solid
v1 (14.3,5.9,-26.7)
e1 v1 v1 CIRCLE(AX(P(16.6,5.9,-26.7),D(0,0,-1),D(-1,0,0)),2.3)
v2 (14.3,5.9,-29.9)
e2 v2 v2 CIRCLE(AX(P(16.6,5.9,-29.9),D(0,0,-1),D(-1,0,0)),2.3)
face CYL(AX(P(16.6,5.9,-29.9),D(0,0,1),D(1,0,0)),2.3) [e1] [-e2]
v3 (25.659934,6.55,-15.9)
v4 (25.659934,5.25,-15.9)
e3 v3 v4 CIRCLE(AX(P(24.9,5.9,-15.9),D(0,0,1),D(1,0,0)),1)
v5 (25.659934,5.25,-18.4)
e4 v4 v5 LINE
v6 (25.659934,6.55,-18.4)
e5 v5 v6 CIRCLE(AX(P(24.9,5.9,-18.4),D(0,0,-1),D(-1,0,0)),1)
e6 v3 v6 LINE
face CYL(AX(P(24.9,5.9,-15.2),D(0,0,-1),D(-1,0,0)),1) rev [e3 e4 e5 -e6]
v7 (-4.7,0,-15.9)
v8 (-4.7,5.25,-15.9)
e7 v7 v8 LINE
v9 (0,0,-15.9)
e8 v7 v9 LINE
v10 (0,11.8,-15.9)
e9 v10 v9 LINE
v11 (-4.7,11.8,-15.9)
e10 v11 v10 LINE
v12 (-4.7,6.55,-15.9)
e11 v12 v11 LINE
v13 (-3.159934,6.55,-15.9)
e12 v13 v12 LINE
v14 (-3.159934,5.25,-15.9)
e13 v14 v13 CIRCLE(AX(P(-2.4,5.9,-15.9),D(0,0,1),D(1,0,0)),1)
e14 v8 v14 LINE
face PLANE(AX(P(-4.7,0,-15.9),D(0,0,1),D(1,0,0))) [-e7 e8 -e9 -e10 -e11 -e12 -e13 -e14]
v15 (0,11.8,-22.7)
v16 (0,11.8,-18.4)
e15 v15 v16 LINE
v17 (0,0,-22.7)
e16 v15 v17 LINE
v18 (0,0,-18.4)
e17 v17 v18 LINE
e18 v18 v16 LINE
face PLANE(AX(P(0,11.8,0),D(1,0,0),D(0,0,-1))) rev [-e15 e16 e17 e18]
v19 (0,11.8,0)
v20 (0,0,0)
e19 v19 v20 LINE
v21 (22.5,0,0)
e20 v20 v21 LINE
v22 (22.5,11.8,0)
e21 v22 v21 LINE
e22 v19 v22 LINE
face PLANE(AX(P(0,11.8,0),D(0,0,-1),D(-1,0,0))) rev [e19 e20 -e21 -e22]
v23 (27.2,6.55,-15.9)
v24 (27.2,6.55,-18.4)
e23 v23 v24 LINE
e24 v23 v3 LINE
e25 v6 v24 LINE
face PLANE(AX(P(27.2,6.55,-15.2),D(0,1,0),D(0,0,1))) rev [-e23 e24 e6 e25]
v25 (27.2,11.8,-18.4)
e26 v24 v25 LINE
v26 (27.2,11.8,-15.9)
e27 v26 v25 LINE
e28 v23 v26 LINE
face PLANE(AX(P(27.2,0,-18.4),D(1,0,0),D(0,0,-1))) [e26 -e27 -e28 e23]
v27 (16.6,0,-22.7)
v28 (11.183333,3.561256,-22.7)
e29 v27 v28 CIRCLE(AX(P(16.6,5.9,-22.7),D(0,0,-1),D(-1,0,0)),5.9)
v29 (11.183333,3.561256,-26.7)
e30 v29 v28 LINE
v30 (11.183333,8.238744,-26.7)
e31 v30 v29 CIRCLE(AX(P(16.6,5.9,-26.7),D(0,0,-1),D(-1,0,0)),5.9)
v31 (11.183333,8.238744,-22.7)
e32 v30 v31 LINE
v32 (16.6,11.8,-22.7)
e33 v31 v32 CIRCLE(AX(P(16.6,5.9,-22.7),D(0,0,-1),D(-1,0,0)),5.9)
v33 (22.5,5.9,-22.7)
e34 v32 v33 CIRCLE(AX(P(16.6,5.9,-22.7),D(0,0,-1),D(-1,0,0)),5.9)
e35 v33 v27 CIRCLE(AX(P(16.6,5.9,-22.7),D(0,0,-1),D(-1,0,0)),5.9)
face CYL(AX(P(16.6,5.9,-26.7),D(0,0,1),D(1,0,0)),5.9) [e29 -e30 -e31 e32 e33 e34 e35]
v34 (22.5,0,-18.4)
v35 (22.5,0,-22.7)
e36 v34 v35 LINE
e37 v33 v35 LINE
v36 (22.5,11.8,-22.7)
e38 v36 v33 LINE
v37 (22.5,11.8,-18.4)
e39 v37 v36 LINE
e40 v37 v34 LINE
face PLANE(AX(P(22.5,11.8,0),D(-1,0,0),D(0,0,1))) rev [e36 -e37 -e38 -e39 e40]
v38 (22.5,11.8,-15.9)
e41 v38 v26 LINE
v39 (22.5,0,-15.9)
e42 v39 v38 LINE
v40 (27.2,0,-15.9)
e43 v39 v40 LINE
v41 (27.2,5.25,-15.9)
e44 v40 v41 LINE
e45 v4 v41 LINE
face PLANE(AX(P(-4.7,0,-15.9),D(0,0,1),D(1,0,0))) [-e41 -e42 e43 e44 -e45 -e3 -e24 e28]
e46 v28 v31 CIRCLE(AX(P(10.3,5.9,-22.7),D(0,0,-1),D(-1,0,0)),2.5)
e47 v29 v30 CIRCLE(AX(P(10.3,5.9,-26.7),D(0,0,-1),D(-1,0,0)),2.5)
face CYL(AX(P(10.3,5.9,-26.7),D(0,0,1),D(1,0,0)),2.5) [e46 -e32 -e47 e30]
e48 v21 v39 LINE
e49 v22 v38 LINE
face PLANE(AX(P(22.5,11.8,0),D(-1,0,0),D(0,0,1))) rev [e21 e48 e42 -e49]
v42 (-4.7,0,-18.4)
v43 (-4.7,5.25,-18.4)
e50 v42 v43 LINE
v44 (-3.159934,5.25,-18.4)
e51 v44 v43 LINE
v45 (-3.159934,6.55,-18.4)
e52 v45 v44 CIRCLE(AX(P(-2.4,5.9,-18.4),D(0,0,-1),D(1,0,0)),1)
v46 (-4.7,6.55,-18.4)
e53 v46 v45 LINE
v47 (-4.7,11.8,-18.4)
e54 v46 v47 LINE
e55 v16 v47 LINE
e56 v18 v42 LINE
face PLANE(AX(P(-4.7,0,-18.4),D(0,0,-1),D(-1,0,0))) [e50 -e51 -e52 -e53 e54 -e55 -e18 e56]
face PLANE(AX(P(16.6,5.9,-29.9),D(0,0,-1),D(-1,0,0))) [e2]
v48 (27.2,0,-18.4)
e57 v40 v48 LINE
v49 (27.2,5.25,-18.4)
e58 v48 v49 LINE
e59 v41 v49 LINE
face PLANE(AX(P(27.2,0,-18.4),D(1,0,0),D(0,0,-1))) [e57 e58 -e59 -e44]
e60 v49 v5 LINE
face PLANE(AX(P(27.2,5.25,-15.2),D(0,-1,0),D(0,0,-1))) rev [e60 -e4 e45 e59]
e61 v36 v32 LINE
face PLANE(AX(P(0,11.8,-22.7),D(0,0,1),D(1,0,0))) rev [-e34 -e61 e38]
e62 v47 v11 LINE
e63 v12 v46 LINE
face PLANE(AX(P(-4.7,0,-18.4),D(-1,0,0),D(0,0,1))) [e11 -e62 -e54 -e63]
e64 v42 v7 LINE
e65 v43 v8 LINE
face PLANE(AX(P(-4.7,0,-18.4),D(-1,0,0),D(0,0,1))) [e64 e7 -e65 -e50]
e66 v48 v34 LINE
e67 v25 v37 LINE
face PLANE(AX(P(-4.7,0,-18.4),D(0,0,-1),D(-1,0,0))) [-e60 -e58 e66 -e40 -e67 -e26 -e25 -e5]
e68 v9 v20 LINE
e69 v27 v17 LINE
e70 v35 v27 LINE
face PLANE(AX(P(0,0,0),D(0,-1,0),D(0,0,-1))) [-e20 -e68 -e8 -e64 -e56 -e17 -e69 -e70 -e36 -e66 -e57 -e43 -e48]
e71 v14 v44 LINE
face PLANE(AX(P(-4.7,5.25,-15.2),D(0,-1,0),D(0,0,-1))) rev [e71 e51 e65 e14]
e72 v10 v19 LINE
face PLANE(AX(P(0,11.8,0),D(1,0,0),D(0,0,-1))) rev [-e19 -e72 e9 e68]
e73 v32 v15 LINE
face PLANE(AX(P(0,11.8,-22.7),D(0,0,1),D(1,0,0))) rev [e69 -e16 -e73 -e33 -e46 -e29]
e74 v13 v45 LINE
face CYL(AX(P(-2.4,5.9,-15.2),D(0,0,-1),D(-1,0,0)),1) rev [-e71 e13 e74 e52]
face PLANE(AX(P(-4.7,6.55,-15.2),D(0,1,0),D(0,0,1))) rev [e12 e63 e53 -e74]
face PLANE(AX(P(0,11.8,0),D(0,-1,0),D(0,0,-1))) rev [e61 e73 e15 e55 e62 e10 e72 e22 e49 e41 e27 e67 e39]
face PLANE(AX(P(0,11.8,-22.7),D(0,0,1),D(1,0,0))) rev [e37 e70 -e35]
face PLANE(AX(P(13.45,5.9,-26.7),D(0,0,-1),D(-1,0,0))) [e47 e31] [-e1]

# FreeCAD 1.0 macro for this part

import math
import FreeCAD as App
import Part
import Sketcher
Q = App.Units.Quantity

doc = App.newDocument("Part")
body = doc.addObject("PartDesign::Body", "Body")

sketch1 = doc.addObject("Sketcher::SketchObject", "Sketch")
body.addObject(sketch1)
sketch1.AttachmentSupport = (doc.XZ_Plane, [""])
sketch1.MapMode = "FlatFace"
sketch1.addGeometry([
    Part.LineSegment(App.Vector(0, -23, 0), App.Vector(0, 0, 0)),
    Part.LineSegment(App.Vector(0, 0, 0), App.Vector(22, 0, 0)),
    Part.LineSegment(App.Vector(22, 0, 0), App.Vector(22, -23, 0)),
    Part.LineSegment(App.Vector(22, -23, 0), App.Vector(0, -23, 0)),
], False)
sketch1.addConstraint([
    Sketcher.Constraint("Coincident", 0, 2, 1, 1),
    Sketcher.Constraint("Coincident", 1, 2, 2, 1),
    Sketcher.Constraint("Coincident", 2, 2, 3, 1),
    Sketcher.Constraint("Coincident", 3, 2, 0, 1),
    Sketcher.Constraint("Vertical", 0),
    Sketcher.Constraint("Horizontal", 1),
    Sketcher.Constraint("Vertical", 2),
    Sketcher.Constraint("Horizontal", 3),
    Sketcher.Constraint("Coincident", 0, 2, -1, 1),
    Sketcher.Constraint("DistanceX", 1, 1, 1, 2, Q("22.5 mm")),
    Sketcher.Constraint("DistanceY", 0, 1, 0, 2, Q("22.7 mm")),
])
pad1 = doc.addObject("PartDesign::Pad", "Pad")
body.addObject(pad1)
pad1.Profile = sketch1
pad1.Length = 11.8
pad1.Reversed = True

sketch2 = doc.addObject("Sketcher::SketchObject", "Sketch001")
body.addObject(sketch2)
sketch2.AttachmentSupport = (doc.XZ_Plane, [""])
sketch2.MapMode = "FlatFace"
sketch2.AttachmentOffset = App.Placement(App.Vector(0, 0, -11.8), App.Rotation())
sketch2.addGeometry([
    Part.LineSegment(App.Vector(-4.7, -18.4, 0), App.Vector(-4.7, -15.9, 0)),
    Part.LineSegment(App.Vector(-4.7, -15.9, 0), App.Vector(27.2, -15.9, 0)),
    Part.LineSegment(App.Vector(27.2, -15.9, 0), App.Vector(27.2, -18.4, 0)),
    Part.LineSegment(App.Vector(27.2, -18.4, 0), App.Vector(-4.7, -18.4, 0)),
], False)
sketch2.addConstraint([
    Sketcher.Constraint("Coincident", 0, 2, 1, 1),
    Sketcher.Constraint("Coincident", 1, 2, 2, 1),
    Sketcher.Constraint("Coincident", 2, 2, 3, 1),
    Sketcher.Constraint("Coincident", 3, 2, 0, 1),
    Sketcher.Constraint("Vertical", 0),
    Sketcher.Constraint("Horizontal", 1),
    Sketcher.Constraint("Vertical", 2),
    Sketcher.Constraint("Horizontal", 3),
    Sketcher.Constraint("DistanceX", 1, 1, 1, 2, Q("31.9 mm")),
    Sketcher.Constraint("DistanceY", 0, 1, 0, 2, Q("2.5 mm")),
    Sketcher.Constraint("DistanceX", 0, 2, -1, 1, Q("4.7 mm")),
    Sketcher.Constraint("DistanceY", 0, 2, -1, 1, Q("15.9 mm")),
])
pad2 = doc.addObject("PartDesign::Pad", "Pad001")
body.addObject(pad2)
pad2.Profile = sketch2
pad2.Length = 11.8

sketch3 = doc.addObject("Sketcher::SketchObject", "Sketch002")
body.addObject(sketch3)
sketch3.AttachmentSupport = (doc.XY_Plane, [""])
sketch3.MapMode = "FlatFace"
sketch3.AttachmentOffset = App.Placement(App.Vector(0, 0, -22.7), App.Rotation())
sketch3.addGeometry([
    Part.ArcOfCircle(Part.Circle(App.Vector(16.6, 5.9, 0), App.Vector(0, 0, 1), 5.9), math.radians(-157), math.radians(157)),
    Part.ArcOfCircle(Part.Circle(App.Vector(10.3, 5.9, 0), App.Vector(0, 0, 1), 2.5), math.radians(69), math.radians(291)),
], False)
sketch3.addConstraint([
    Sketcher.Constraint("Coincident", 0, 1, 1, 2),
    Sketcher.Constraint("Coincident", 1, 1, 0, 2),
    Sketcher.Constraint("Horizontal", 0, 3, 1, 3),
    Sketcher.Constraint("Radius", 0, Q("5.9 mm")),
    Sketcher.Constraint("Radius", 1, Q("2.5 mm")),
    Sketcher.Constraint("DistanceX", -1, 1, 0, 3, Q("16.6 mm")),
    Sketcher.Constraint("DistanceY", -1, 1, 0, 3, Q("5.9 mm")),
    Sketcher.Constraint("DistanceX", -1, 1, 1, 3, Q("10.3 mm")),
])
pad3 = doc.addObject("PartDesign::Pad", "Pad002")
body.addObject(pad3)
pad3.Profile = sketch3
pad3.Length = 4
pad3.Reversed = True

sketch4 = doc.addObject("Sketcher::SketchObject", "Sketch003")
body.addObject(sketch4)
sketch4.AttachmentSupport = (doc.XY_Plane, [""])
sketch4.MapMode = "FlatFace"
sketch4.AttachmentOffset = App.Placement(App.Vector(0, 0, -26.7), App.Rotation())
sketch4.addGeometry(Part.Circle(App.Vector(16.6, 5.9, 0), App.Vector(0, 0, 1), 2.3), False)
sketch4.addConstraint([
    Sketcher.Constraint("Diameter", 0, Q("4.6 mm")),
    Sketcher.Constraint("DistanceX", -1, 1, 0, 3, Q("16.6 mm")),
    Sketcher.Constraint("DistanceY", -1, 1, 0, 3, Q("5.9 mm")),
])
pad4 = doc.addObject("PartDesign::Pad", "Pad003")
body.addObject(pad4)
pad4.Profile = sketch4
pad4.Length = 3.2
pad4.Reversed = True

sketch5 = doc.addObject("Sketcher::SketchObject", "Sketch004")
body.addObject(sketch5)
sketch5.AttachmentSupport = (doc.XY_Plane, [""])
sketch5.MapMode = "FlatFace"
sketch5.AttachmentOffset = App.Placement(App.Vector(0, 0, -18.4), App.Rotation())
sketch5.addGeometry([
    Part.LineSegment(App.Vector(27.2, 6.5, 0), App.Vector(27.2, 5.2, 0)),
    Part.LineSegment(App.Vector(27.2, 5.2, 0), App.Vector(25.7, 5.2, 0)),
    Part.ArcOfCircle(Part.Circle(App.Vector(24.9, 5.9, 0), App.Vector(0, 0, 1), 1), math.radians(41), math.radians(319)),
    Part.LineSegment(App.Vector(25.7, 6.5, 0), App.Vector(27.2, 6.5, 0)),
    Part.LineSegment(App.Vector(-3.2, 5.2, 0), App.Vector(-4.7, 5.2, 0)),
    Part.LineSegment(App.Vector(-4.7, 5.2, 0), App.Vector(-4.7, 6.5, 0)),
    Part.LineSegment(App.Vector(-4.7, 6.5, 0), App.Vector(-3.2, 6.5, 0)),
    Part.ArcOfCircle(Part.Circle(App.Vector(-2.4, 5.9, 0), App.Vector(0, 0, 1), 1), math.radians(-139), math.radians(139)),
], False)
sketch5.addConstraint([
    Sketcher.Constraint("Coincident", 0, 2, 1, 1),
    Sketcher.Constraint("Coincident", 1, 2, 2, 2),
    Sketcher.Constraint("Coincident", 2, 1, 3, 1),
    Sketcher.Constraint("Coincident", 3, 2, 0, 1),
    Sketcher.Constraint("Coincident", 4, 2, 5, 1),
    Sketcher.Constraint("Coincident", 5, 2, 6, 1),
    Sketcher.Constraint("Coincident", 6, 2, 7, 2),
    Sketcher.Constraint("Coincident", 7, 1, 4, 1),
    Sketcher.Constraint("Vertical", 0),
    Sketcher.Constraint("Horizontal", 1),
    Sketcher.Constraint("Horizontal", 3),
    Sketcher.Constraint("Horizontal", 4),
    Sketcher.Constraint("Vertical", 5),
    Sketcher.Constraint("Horizontal", 6),
    Sketcher.Constraint("Equal", 2, 7),
    Sketcher.Constraint("Horizontal", 2, 3, 7, 3),
    Sketcher.Constraint("Horizontal", 1, 2, 4, 2),
    Sketcher.Constraint("Horizontal", 3, 2, 5, 2),
    Sketcher.Constraint("Vertical", 1, 2, 2, 1),
    Sketcher.Constraint("Equal", 3, 4),
    Sketcher.Constraint("Radius", 2, Q("1 mm")),
    Sketcher.Constraint("DistanceY", 0, 2, 0, 1, Q("1.3 mm")),
    Sketcher.Constraint("DistanceX", -1, 1, 2, 3, Q("24.9 mm")),
    Sketcher.Constraint("DistanceY", -1, 1, 2, 3, Q("5.9 mm")),
    Sketcher.Constraint("DistanceX", 7, 3, -1, 1, Q("2.4 mm")),
    Sketcher.Constraint("DistanceX", -1, 1, 0, 2, Q("27.2 mm")),
])
pocket1 = doc.addObject("PartDesign::Pocket", "Pocket")
body.addObject(pocket1)
pocket1.Profile = sketch5
pocket1.Length = 3.2
pocket1.Reversed = True

doc.recompute()
